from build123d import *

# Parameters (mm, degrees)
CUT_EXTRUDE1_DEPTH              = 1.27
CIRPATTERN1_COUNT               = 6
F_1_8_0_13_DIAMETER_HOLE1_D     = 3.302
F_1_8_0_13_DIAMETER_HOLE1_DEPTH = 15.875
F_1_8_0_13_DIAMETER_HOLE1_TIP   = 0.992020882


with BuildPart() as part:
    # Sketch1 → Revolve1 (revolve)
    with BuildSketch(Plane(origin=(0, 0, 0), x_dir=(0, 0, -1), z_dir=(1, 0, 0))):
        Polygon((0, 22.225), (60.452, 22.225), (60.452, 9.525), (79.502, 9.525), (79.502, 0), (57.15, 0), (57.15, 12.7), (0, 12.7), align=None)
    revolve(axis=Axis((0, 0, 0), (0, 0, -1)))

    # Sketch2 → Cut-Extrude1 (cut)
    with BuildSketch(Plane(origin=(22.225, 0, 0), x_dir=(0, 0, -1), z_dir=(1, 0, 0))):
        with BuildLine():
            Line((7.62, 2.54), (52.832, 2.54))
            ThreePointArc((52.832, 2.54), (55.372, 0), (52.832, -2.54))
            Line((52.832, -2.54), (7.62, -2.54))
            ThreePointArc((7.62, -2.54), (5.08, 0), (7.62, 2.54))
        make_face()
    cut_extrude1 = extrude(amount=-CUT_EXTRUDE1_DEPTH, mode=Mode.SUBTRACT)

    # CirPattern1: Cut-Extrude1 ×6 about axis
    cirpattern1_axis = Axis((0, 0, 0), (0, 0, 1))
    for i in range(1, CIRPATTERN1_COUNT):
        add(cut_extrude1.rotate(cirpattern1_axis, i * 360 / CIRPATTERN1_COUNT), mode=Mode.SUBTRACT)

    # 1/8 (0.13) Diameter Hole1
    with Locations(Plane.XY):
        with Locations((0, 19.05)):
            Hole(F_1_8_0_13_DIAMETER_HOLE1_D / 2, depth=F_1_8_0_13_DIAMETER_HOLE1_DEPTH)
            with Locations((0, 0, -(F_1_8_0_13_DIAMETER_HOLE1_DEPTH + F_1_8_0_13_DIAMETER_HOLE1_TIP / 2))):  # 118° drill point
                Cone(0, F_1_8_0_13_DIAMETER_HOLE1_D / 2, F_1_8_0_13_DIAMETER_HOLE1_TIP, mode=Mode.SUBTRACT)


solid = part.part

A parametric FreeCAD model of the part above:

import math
import FreeCAD as App
import Part
import Sketcher
Q = App.Units.Quantity

doc = App.newDocument("Part")
body = doc.addObject("PartDesign::Body", "Body")

sketch1 = doc.addObject("Sketcher::SketchObject", "Sketch")
body.addObject(sketch1)
sketch1.AttachmentSupport = (doc.YZ_Plane, [""])
sketch1.MapMode = "FlatFace"
sketch1.addGeometry(Part.LineSegment(App.Vector(22.225, -60.452, 0), App.Vector(22.225, 0, 0)), False)
sketch1.addGeometry(Part.LineSegment(App.Vector(22.225, 0, 0), App.Vector(12.7, 0, 0)), False)
sketch1.addGeometry(Part.LineSegment(App.Vector(12.7, 0, 0), App.Vector(12.7, -57.15, 0)), False)
sketch1.addGeometry(Part.LineSegment(App.Vector(12.7, -57.15, 0), App.Vector(0, -57.15, 0)), False)
sketch1.addGeometry(Part.LineSegment(App.Vector(0, -57.15, 0), App.Vector(0, -79.502, 0)), False)
sketch1.addGeometry(Part.LineSegment(App.Vector(0, -79.502, 0), App.Vector(9.525, -79.502, 0)), False)
sketch1.addGeometry(Part.LineSegment(App.Vector(9.525, -79.502, 0), App.Vector(9.525, -60.452, 0)), False)
sketch1.addGeometry(Part.LineSegment(App.Vector(9.525, -60.452, 0), App.Vector(22.225, -60.452, 0)), False)
sketch1.addConstraint(Sketcher.Constraint("Coincident", 0, 2, 1, 1))
sketch1.addConstraint(Sketcher.Constraint("Coincident", 1, 2, 2, 1))
sketch1.addConstraint(Sketcher.Constraint("Coincident", 2, 2, 3, 1))
sketch1.addConstraint(Sketcher.Constraint("Coincident", 3, 2, 4, 1))
sketch1.addConstraint(Sketcher.Constraint("Coincident", 4, 2, 5, 1))
sketch1.addConstraint(Sketcher.Constraint("Coincident", 5, 2, 6, 1))
sketch1.addConstraint(Sketcher.Constraint("Coincident", 6, 2, 7, 1))
sketch1.addConstraint(Sketcher.Constraint("Coincident", 7, 2, 0, 1))
sketch1.addConstraint(Sketcher.Constraint("Vertical", 0))
sketch1.addConstraint(Sketcher.Constraint("Horizontal", 1))
sketch1.addConstraint(Sketcher.Constraint("Vertical", 2))
sketch1.addConstraint(Sketcher.Constraint("Horizontal", 3))
sketch1.addConstraint(Sketcher.Constraint("Vertical", 4))
sketch1.addConstraint(Sketcher.Constraint("Horizontal", 5))
sketch1.addConstraint(Sketcher.Constraint("Vertical", 6))
sketch1.addConstraint(Sketcher.Constraint("Horizontal", 7))
sketch1.addConstraint(Sketcher.Constraint("PointOnObject", 0, 2, -1))
sketch1.addConstraint(Sketcher.Constraint("PointOnObject", 3, 2, -2))
sketch1.addConstraint(Sketcher.Constraint("Equal", 1, 5))
sketch1.addConstraint(Sketcher.Constraint("DistanceX", 3, 2, 3, 1, Q("0.5 in")))
sketch1.addConstraint(Sketcher.Constraint("DistanceY", 0, 1, 0, 2, Q("2.38 in")))
sketch1.addConstraint(Sketcher.Constraint("DistanceY", 2, 2, 2, 1, Q("2.25 in")))
sketch1.addConstraint(Sketcher.Constraint("DistanceY", 4, 2, 4, 1, Q("0.88 in")))
sketch1.addConstraint(Sketcher.Constraint("DistanceX", 1, 2, 1, 1, Q("0.375 in")))
revolution = doc.addObject("PartDesign::Revolution", "Revolution")
body.addObject(revolution)
revolution.Profile = sketch1
revolution.ReferenceAxis = (sketch1, ["V_Axis"])
revolution.Angle = 360

sketch2 = doc.addObject("Sketcher::SketchObject", "Sketch001")
body.addObject(sketch2)
sketch2.AttachmentSupport = (doc.YZ_Plane, [""])
sketch2.MapMode = "FlatFace"
sketch2.AttachmentOffset = App.Placement(App.Vector(0, 0, 0.875 * 25.4), App.Rotation())
sketch2.addGeometry(Part.LineSegment(App.Vector(2.54, -52.832, 0), App.Vector(2.54, -7.62, 0)), False)
sketch2.addGeometry(Part.ArcOfCircle(Part.Circle(App.Vector(0, -7.62, 0), App.Vector(0, 0, 1), 2.54), math.radians(0), math.radians(180)), False)
sketch2.addGeometry(Part.LineSegment(App.Vector(-2.54, -7.62, 0), App.Vector(-2.54, -52.832, 0)), False)
sketch2.addGeometry(Part.ArcOfCircle(Part.Circle(App.Vector(0, -52.832, 0), App.Vector(0, 0, 1), 2.54), math.radians(180), math.radians(360)), False)
sketch2.addConstraint(Sketcher.Constraint("Tangent", 0, 2, 1, 1))
sketch2.addConstraint(Sketcher.Constraint("Tangent", 1, 2, 2, 1))
sketch2.addConstraint(Sketcher.Constraint("Tangent", 2, 2, 3, 1))
sketch2.addConstraint(Sketcher.Constraint("Tangent", 3, 2, 0, 1))
sketch2.addConstraint(Sketcher.Constraint("Vertical", 0))
sketch2.addConstraint(Sketcher.Constraint("Vertical", 2))
sketch2.addConstraint(Sketcher.Constraint("PointOnObject", 1, 3, -2))
sketch2.addConstraint(Sketcher.Constraint("Radius", 1, Q("0.1 in")))
sketch2.addConstraint(Sketcher.Constraint("DistanceY", 0, 1, 0, 2, Q("1.78 in")))
sketch2.addConstraint(Sketcher.Constraint("DistanceY", 1, 3, -1, 1, Q("0.3 in")))
pocket1 = doc.addObject("PartDesign::Pocket", "Pocket")
body.addObject(pocket1)
pocket1.Profile = sketch2
pocket1.Length = Q("0.05 in")
doc.recompute()

polarpattern = doc.addObject("PartDesign::PolarPattern", "PolarPattern")
body.addObject(polarpattern)
polarpattern.Originals = [pocket1]
polarpattern.Axis = (doc.Z_Axis, [""])
polarpattern.Angle = 360
polarpattern.Occurrences = 6
body.Tip = polarpattern

sketch3 = doc.addObject("Sketcher::SketchObject", "Sketch002")
body.addObject(sketch3)
sketch3.AttachmentSupport = (doc.XY_Plane, [""])
sketch3.MapMode = "FlatFace"
sketch3.addGeometry(Part.Circle(App.Vector(0, 19.05, 0), App.Vector(0, 0, 1), 1.651), False)
sketch3.addConstraint(Sketcher.Constraint("PointOnObject", 0, 3, -2))
sketch3.addConstraint(Sketcher.Constraint("Diameter", 0, Q("0.13 in")))
sketch3.addConstraint(Sketcher.Constraint("DistanceY", -1, 1, 0, 3, Q("0.75 in")))
doc.recompute()
hole = doc.addObject("PartDesign::Hole", "Hole")
body.addObject(hole)
hole.Profile = sketch3
hole.ThreadType = "None"
hole.Diameter = Q("0.13 in")
hole.DepthType = "Dimension"
hole.Depth = Q("0.625 in")
hole.DrillPoint = "Angled"
hole.DrillPointAngle = 118

doc.recompute()
